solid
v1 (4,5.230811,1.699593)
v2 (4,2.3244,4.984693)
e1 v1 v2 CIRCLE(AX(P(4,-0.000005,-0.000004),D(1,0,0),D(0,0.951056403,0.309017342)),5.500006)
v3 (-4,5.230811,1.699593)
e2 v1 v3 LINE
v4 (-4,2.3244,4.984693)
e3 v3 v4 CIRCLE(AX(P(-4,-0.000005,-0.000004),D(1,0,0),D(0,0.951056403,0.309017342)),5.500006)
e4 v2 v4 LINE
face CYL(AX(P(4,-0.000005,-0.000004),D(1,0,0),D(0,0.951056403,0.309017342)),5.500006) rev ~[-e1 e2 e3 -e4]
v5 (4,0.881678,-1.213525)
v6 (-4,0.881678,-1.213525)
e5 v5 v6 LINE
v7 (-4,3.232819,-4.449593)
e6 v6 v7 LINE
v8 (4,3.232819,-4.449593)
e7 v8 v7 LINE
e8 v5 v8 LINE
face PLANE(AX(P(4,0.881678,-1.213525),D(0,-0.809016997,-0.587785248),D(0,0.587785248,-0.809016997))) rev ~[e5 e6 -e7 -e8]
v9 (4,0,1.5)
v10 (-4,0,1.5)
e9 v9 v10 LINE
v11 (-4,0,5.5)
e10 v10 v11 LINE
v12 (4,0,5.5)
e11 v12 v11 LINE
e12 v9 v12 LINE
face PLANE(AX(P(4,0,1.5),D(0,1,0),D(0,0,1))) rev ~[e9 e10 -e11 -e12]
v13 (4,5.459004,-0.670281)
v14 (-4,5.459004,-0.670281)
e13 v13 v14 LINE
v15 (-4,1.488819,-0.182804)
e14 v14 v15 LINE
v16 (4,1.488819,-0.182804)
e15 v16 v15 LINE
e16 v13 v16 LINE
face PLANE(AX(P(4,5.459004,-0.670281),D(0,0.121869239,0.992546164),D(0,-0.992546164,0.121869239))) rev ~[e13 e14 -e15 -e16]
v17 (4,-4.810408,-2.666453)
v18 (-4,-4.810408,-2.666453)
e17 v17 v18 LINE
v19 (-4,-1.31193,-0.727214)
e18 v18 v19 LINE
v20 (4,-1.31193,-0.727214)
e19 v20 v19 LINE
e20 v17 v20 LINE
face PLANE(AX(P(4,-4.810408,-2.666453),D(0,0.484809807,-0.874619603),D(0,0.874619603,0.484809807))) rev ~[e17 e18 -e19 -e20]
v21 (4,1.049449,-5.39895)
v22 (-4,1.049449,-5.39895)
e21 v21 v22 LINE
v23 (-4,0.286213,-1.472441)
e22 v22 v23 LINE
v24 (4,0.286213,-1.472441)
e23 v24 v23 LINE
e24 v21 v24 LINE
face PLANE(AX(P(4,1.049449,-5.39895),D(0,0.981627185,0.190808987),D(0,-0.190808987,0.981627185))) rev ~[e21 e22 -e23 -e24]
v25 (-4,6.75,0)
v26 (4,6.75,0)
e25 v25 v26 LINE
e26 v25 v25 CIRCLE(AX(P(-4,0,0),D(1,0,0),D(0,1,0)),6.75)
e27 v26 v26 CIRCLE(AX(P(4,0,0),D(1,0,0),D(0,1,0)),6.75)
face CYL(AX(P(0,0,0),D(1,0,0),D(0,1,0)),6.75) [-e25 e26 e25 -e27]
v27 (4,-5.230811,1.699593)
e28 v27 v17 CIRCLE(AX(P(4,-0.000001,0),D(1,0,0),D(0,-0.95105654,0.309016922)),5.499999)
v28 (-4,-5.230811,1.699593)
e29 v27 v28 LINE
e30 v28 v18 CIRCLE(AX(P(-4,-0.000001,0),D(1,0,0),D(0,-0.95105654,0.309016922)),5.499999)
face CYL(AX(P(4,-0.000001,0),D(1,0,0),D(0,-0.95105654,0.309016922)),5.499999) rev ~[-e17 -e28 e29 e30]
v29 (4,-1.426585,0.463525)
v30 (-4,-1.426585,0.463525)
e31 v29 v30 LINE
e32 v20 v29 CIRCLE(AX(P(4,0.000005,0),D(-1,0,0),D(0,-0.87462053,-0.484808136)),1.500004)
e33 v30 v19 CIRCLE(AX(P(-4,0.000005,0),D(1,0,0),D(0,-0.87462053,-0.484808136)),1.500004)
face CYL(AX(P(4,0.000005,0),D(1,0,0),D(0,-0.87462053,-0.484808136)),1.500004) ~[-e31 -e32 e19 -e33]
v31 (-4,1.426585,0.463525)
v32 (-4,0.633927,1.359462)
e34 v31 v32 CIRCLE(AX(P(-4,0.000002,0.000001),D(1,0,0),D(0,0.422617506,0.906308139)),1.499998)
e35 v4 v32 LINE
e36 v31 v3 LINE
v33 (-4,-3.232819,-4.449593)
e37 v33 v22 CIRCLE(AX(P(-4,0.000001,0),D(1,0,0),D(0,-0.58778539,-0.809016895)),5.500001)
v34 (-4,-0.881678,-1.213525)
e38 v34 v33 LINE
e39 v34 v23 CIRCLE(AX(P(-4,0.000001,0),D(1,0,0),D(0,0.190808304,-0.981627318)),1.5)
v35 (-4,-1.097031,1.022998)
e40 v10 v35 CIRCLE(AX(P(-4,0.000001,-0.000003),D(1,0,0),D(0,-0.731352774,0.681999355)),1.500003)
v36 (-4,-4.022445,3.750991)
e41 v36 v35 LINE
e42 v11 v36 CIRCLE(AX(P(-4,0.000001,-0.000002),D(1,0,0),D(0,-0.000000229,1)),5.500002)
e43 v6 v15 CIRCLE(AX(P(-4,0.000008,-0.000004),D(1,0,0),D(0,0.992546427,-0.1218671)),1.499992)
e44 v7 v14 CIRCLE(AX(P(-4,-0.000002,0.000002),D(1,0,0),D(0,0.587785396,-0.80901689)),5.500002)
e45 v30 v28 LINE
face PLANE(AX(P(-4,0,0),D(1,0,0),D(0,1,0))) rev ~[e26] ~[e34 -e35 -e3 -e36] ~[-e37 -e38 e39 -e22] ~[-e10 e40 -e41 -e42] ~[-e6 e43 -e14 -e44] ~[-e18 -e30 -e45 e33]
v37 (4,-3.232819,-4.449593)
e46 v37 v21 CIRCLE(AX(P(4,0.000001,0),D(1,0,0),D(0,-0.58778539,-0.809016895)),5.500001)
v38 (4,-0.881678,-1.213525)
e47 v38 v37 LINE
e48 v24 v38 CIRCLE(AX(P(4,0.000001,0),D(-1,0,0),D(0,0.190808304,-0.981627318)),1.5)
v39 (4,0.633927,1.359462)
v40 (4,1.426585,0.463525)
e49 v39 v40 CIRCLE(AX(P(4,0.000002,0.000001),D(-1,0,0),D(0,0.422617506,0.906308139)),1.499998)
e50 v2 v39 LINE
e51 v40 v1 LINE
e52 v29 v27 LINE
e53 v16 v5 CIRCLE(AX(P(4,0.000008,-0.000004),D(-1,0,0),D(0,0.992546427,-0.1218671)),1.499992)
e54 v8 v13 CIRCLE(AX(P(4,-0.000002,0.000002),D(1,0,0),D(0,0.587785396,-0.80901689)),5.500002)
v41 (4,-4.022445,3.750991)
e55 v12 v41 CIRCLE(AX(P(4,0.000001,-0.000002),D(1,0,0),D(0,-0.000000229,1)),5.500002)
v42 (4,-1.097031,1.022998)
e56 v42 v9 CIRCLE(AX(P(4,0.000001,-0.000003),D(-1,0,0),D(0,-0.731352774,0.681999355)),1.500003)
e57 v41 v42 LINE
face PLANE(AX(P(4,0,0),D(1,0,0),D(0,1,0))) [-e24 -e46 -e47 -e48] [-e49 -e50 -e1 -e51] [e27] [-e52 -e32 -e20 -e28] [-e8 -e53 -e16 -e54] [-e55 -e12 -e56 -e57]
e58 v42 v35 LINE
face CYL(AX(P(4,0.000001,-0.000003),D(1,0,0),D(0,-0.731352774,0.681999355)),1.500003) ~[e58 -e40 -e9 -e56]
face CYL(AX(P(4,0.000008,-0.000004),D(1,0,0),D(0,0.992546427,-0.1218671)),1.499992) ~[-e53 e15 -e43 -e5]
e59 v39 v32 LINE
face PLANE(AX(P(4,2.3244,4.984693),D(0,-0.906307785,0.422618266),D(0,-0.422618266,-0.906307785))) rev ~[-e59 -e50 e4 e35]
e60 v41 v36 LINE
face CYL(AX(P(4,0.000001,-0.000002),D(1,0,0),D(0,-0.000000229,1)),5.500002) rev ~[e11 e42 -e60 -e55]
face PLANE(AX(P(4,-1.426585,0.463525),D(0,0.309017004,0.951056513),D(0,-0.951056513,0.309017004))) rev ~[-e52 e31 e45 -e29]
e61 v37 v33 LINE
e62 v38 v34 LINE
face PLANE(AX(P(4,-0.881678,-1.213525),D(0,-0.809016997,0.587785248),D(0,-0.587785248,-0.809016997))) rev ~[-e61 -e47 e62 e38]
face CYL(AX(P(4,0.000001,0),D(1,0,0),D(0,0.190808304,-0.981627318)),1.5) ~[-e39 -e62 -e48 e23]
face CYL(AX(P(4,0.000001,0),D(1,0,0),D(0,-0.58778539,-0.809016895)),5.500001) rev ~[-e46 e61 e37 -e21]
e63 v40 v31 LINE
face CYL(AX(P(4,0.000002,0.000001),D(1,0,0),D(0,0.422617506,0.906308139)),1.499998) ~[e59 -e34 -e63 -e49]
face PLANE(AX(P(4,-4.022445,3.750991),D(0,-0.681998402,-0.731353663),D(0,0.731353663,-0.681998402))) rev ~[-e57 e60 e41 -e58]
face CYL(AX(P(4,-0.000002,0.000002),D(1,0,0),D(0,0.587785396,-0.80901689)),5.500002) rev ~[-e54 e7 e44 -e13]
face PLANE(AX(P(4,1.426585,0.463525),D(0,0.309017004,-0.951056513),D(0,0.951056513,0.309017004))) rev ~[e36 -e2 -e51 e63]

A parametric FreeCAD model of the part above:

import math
import FreeCAD as App
import Part
import Sketcher
Q = App.Units.Quantity

doc = App.newDocument("Part")
body = doc.addObject("PartDesign::Body", "Body")

# Sketch on YZ plane
sketch1 = body.newObject("Sketcher::SketchObject", "Sketch")
sketch1.AttachmentSupport = (doc.getObject("YZ_Plane"), [""])
sketch1.MapMode = "FlatFace"
sketch1.addGeometry(Part.Circle(App.Vector(0, 0, 0), App.Vector(0, 0, 1), 6.75), False)
sketch1.addConstraint([
    Sketcher.Constraint("Coincident", 0, 3, -1, 1),
    Sketcher.Constraint("Diameter", 0, 13.5),
])
pad1 = body.newObject("PartDesign::Pad", "Pad")
pad1.Profile = sketch1
pad1.Length = 8
pad1.Midplane = True

# Sketch on YZ plane
sketch2 = body.newObject("Sketcher::SketchObject", "Sketch001")
sketch2.AttachmentSupport = (doc.getObject("YZ_Plane"), [""])
sketch2.MapMode = "FlatFace"
sketch2.AttachmentOffset = App.Placement(App.Vector(0, 0, 4), App.Rotation())
sketch2.addGeometry([
    Part.ArcOfCircle(Part.Circle(App.Vector(0.000001, -0.000003, 0), App.Vector(0, 0, 1), 1.500003), math.radians(90.00002), math.radians(136.999922)),  # 0
    Part.LineSegment(App.Vector(0, 1.5, 0), App.Vector(0, 5.5, 0)),  # 1
    Part.ArcOfCircle(Part.Circle(App.Vector(0.000001, -0.000002, 0), App.Vector(0, 0, 1), 5.500002), math.radians(90.000013), math.radians(136.99999)),  # 2
    Part.LineSegment(App.Vector(-4.022445, 3.750991, 0), App.Vector(-1.097031, 1.022998, 0)),  # 3
    Part.ArcOfCircle(Part.Circle(App.Vector(0.000002, 0.000001, 0), App.Vector(0, 0, 1), 1.499998), math.radians(17.999945), math.radians(65.000048)),  # 4
    Part.LineSegment(App.Vector(1.426585, 0.463525, 0), App.Vector(5.230811, 1.699593, 0)),  # 5
    Part.ArcOfCircle(Part.Circle(App.Vector(-0.000005, -0.000004, 0), App.Vector(0, 0, 1), 5.500006), math.radians(18.000021), math.radians(64.99998)),  # 6
    Part.LineSegment(App.Vector(2.3244, 4.984693, 0), App.Vector(0.633927, 1.359462, 0)),  # 7
    Part.LineSegment(App.Vector(5.459004, -0.670281, 0), App.Vector(1.488819, -0.182804, 0)),  # 8
    Part.ArcOfCircle(Part.Circle(App.Vector(0.000008, -0.000004, 0), App.Vector(0, 0, 1), 1.499992), math.radians(-54.000124), math.radians(-6.99987)),  # 9
    Part.LineSegment(App.Vector(0.881678, -1.213525, 0), App.Vector(3.232819, -4.449593, 0)),  # 10
    Part.ArcOfCircle(Part.Circle(App.Vector(-0.000002, 0.000002, 0), App.Vector(0, 0, 1), 5.500002), math.radians(-53.99999), math.radians(-7.000012)),  # 11
    Part.LineSegment(App.Vector(1.049449, -5.39895, 0), App.Vector(0.286213, -1.472441, 0)),  # 12
    Part.ArcOfCircle(Part.Circle(App.Vector(0.000001, 0, 0), App.Vector(0, 0, 1), 1.5), math.radians(-126.000034), math.radians(-79.00004)),  # 13
    Part.LineSegment(App.Vector(-0.881678, -1.213525, 0), App.Vector(-3.232819, -4.449593, 0)),  # 14
    Part.ArcOfCircle(Part.Circle(App.Vector(0.000001, 0, 0), App.Vector(0, 0, 1), 5.500001), math.radians(-126.00001), math.radians(-79.000017)),  # 15
    Part.ArcOfCircle(Part.Circle(App.Vector(0.000005, 0, 0), App.Vector(0, 0, 1), 1.500004), math.radians(162.000085), math.radians(208.999903)),  # 16
    Part.LineSegment(App.Vector(-1.426585, 0.463525, 0), App.Vector(-5.230811, 1.699593, 0)),  # 17
    Part.ArcOfCircle(Part.Circle(App.Vector(-0.000001, 0, 0), App.Vector(0, 0, 1), 5.499999), math.radians(162.000004), math.radians(209.000011)),  # 18
    Part.LineSegment(App.Vector(-4.810408, -2.666453, 0), App.Vector(-1.31193, -0.727214, 0)),  # 19
], False)
sketch2.addConstraint([
    Sketcher.Constraint("Coincident", 0, 1, 1, 1),
    Sketcher.Constraint("Coincident", 1, 2, 2, 1),
    Sketcher.Constraint("Coincident", 2, 2, 3, 1),
    Sketcher.Constraint("Coincident", 3, 2, 0, 2),
    Sketcher.Constraint("Coincident", 4, 1, 5, 1),
    Sketcher.Constraint("Coincident", 5, 2, 6, 1),
    Sketcher.Constraint("Coincident", 6, 2, 7, 1),
    Sketcher.Constraint("Coincident", 7, 2, 4, 2),
    Sketcher.Constraint("Coincident", 8, 2, 9, 2),
    Sketcher.Constraint("Coincident", 9, 1, 10, 1),
    Sketcher.Constraint("Coincident", 10, 2, 11, 1),
    Sketcher.Constraint("Coincident", 11, 2, 8, 1),
    Sketcher.Constraint("Coincident", 12, 2, 13, 2),
    Sketcher.Constraint("Coincident", 13, 1, 14, 1),
    Sketcher.Constraint("Coincident", 14, 2, 15, 1),
    Sketcher.Constraint("Coincident", 15, 2, 12, 1),
    Sketcher.Constraint("Coincident", 16, 1, 17, 1),
    Sketcher.Constraint("Coincident", 17, 2, 18, 1),
    Sketcher.Constraint("Coincident", 18, 2, 19, 1),
    Sketcher.Constraint("Coincident", 19, 2, 16, 2),
    Sketcher.Constraint("Vertical", 1),
    Sketcher.Constraint("Coincident", 0, 3, -1, 1),
    Sketcher.Constraint("Coincident", 2, 3, -1, 1),
    Sketcher.Constraint("Coincident", 4, 3, -1, 1),
    Sketcher.Constraint("Coincident", 6, 3, -1, 1),
    Sketcher.Constraint("Coincident", 9, 3, -1, 1),
    Sketcher.Constraint("Coincident", 11, 3, -1, 1),
    Sketcher.Constraint("Coincident", 13, 3, -1, 1),
    Sketcher.Constraint("Coincident", 15, 3, -1, 1),
    Sketcher.Constraint("Coincident", 16, 3, -1, 1),
    Sketcher.Constraint("Coincident", 18, 3, -1, 1),
    Sketcher.Constraint("Equal", 2, 11),
    Sketcher.Constraint("Equal", 4, 13),
    Sketcher.Constraint("Equal", 11, 15),
    Sketcher.Constraint("Equal", 0, 16),
    Sketcher.Constraint("Equal", 15, 18),
    Sketcher.Constraint("Symmetric", 9, 1, 13, 1, -2),
    Sketcher.Constraint("Symmetric", 4, 1, 16, 1, -2),
    Sketcher.Constraint("Symmetric", 5, 2, 17, 2, -2),
    Sketcher.Constraint("PointOnObject", 0, 1, -2),
    Sketcher.Constraint("Horizontal", 10, 2, 14, 2),
    Sketcher.Constraint("Radius", 4, 1.499998),
    Sketcher.Constraint("Radius", 15, 5.500001),
    Sketcher.Constraint("Angle", 3, Q("-43.000003 deg")),
    Sketcher.Constraint("Angle", 5, Q("18.000001 deg")),
    Sketcher.Constraint("Angle", 7, Q("-115 deg")),
    Sketcher.Constraint("Angle", 8, Q("173.000006 deg")),
    Sketcher.Constraint("Angle", 10, Q("-54 deg")),
    Sketcher.Constraint("Angle", 12, Q("101 deg")),
    Sketcher.Constraint("Angle", 19, Q("29.000012 deg")),
    Sketcher.Constraint("DistanceY", -1, 1, 3, 2, 1.022998),
    Sketcher.Constraint("DistanceX", 8, 2, 10, 2, 1.744),
    Sketcher.Constraint("DistanceX", -1, 1, 6, 2, 2.3244),
    Sketcher.Constraint("DistanceY", 5, 2, 6, 2, 3.2851),
    Sketcher.Constraint("DistanceY", 8, 2, 9, 3, 0.1828),
    Sketcher.Constraint("DistanceY", 12, 2, -1, 1, 1.472441),
    Sketcher.Constraint("DistanceX", 19, 2, -1, 1, 1.31193),
])
pocket1 = body.newObject("PartDesign::Pocket", "Pocket")
pocket1.Profile = sketch2
pocket1.Type = "ThroughAll"

doc.recompute()
